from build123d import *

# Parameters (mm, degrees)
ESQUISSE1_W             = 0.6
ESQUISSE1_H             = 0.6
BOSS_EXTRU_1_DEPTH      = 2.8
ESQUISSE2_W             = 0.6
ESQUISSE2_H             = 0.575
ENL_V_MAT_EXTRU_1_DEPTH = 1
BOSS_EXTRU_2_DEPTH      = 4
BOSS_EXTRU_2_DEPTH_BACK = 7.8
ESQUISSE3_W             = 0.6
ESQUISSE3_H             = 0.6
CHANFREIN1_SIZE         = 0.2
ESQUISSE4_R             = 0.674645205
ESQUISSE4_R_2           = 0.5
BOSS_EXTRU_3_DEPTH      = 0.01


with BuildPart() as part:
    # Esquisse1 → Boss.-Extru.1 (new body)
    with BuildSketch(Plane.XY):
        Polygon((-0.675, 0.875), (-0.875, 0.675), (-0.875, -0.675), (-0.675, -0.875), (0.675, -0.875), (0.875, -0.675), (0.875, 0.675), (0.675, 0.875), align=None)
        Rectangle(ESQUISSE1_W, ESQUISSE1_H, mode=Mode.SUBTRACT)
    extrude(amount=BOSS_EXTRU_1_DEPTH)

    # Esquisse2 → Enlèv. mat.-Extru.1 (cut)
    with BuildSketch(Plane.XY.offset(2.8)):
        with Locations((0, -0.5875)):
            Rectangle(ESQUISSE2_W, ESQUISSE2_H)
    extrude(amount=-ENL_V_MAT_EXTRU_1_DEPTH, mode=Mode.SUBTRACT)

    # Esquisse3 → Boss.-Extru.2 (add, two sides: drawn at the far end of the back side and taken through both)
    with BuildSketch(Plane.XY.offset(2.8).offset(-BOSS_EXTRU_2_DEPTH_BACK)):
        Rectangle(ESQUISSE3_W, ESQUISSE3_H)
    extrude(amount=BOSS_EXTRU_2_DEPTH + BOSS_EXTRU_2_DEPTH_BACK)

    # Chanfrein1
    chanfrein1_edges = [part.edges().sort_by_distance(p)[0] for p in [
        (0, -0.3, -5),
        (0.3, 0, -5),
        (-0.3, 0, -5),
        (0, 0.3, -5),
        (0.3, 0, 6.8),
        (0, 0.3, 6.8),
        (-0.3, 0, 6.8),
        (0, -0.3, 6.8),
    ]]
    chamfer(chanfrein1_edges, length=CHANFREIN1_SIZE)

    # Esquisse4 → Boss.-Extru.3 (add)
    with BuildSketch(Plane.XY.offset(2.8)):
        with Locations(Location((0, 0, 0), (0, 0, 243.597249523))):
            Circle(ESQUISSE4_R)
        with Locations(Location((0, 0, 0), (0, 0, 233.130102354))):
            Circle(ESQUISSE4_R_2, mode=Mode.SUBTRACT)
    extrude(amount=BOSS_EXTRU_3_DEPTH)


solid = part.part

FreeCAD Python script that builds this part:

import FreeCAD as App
import Part
import Sketcher
from FreeCAD import Vector
Q = App.Units.Quantity


def edges_at(feature, points):
    """Names of the edges that pass closest to the given points."""
    edges = feature.Shape.Edges
    near = lambda p: min(range(len(edges)), key=lambda i: edges[i].distToShape(Part.Vertex(*p))[0])
    return sorted({f"Edge{near(p) + 1}" for p in points})

doc = App.newDocument("Part")
body = doc.addObject("PartDesign::Body", "Body")

# Sketch on XY plane
sketch1 = body.newObject("Sketcher::SketchObject", "Sketch")
sketch1.AttachmentSupport = (doc.getObject("XY_Plane"), [""])
sketch1.MapMode = "FlatFace"
sketch1.addGeometry(Part.LineSegment(Vector(-0.675, 0.875, 0), Vector(-0.875, 0.675, 0)), False)
sketch1.addGeometry(Part.LineSegment(Vector(-0.875, 0.675, 0), Vector(-0.875, -0.675, 0)), False)
sketch1.addGeometry(Part.LineSegment(Vector(-0.875, -0.675, 0), Vector(-0.675, -0.875, 0)), False)
sketch1.addGeometry(Part.LineSegment(Vector(-0.675, -0.875, 0), Vector(0.675, -0.875, 0)), False)
sketch1.addGeometry(Part.LineSegment(Vector(0.675, -0.875, 0), Vector(0.875, -0.675, 0)), False)
sketch1.addGeometry(Part.LineSegment(Vector(0.875, -0.675, 0), Vector(0.875, 0.675, 0)), False)
sketch1.addGeometry(Part.LineSegment(Vector(0.875, 0.675, 0), Vector(0.675, 0.875, 0)), False)
sketch1.addGeometry(Part.LineSegment(Vector(0.675, 0.875, 0), Vector(-0.675, 0.875, 0)), False)
sketch1.addGeometry(Part.LineSegment(Vector(0.3, -0.3, 0), Vector(-0.3, -0.3, 0)), False)
sketch1.addGeometry(Part.LineSegment(Vector(-0.3, -0.3, 0), Vector(-0.3, 0.3, 0)), False)
sketch1.addGeometry(Part.LineSegment(Vector(-0.3, 0.3, 0), Vector(0.3, 0.3, 0)), False)
sketch1.addGeometry(Part.LineSegment(Vector(0.3, 0.3, 0), Vector(0.3, -0.3, 0)), False)
sketch1.addConstraint(Sketcher.Constraint("Coincident", 0, 2, 1, 1))
sketch1.addConstraint(Sketcher.Constraint("Coincident", 1, 2, 2, 1))
sketch1.addConstraint(Sketcher.Constraint("Coincident", 2, 2, 3, 1))
sketch1.addConstraint(Sketcher.Constraint("Coincident", 3, 2, 4, 1))
sketch1.addConstraint(Sketcher.Constraint("Coincident", 4, 2, 5, 1))
sketch1.addConstraint(Sketcher.Constraint("Coincident", 5, 2, 6, 1))
sketch1.addConstraint(Sketcher.Constraint("Coincident", 6, 2, 7, 1))
sketch1.addConstraint(Sketcher.Constraint("Coincident", 7, 2, 0, 1))
sketch1.addConstraint(Sketcher.Constraint("Coincident", 8, 2, 9, 1))
sketch1.addConstraint(Sketcher.Constraint("Coincident", 9, 2, 10, 1))
sketch1.addConstraint(Sketcher.Constraint("Coincident", 10, 2, 11, 1))
sketch1.addConstraint(Sketcher.Constraint("Coincident", 11, 2, 8, 1))
sketch1.addConstraint(Sketcher.Constraint("Vertical", 1))
sketch1.addConstraint(Sketcher.Constraint("Horizontal", 3))
sketch1.addConstraint(Sketcher.Constraint("Vertical", 5))
sketch1.addConstraint(Sketcher.Constraint("Horizontal", 7))
sketch1.addConstraint(Sketcher.Constraint("Horizontal", 8))
sketch1.addConstraint(Sketcher.Constraint("Vertical", 9))
sketch1.addConstraint(Sketcher.Constraint("Horizontal", 10))
sketch1.addConstraint(Sketcher.Constraint("Vertical", 11))
sketch1.addConstraint(Sketcher.Constraint("Symmetric", 0, 2, 4, 2, -1, 1))
sketch1.addConstraint(Sketcher.Constraint("Symmetric", 2, 2, 6, 2, -1, 1))
sketch1.addConstraint(Sketcher.Constraint("Symmetric", 8, 2, 10, 2, -1, 1))
sketch1.addConstraint(Sketcher.Constraint("Perpendicular", 0, 2))
sketch1.addConstraint(Sketcher.Constraint("Perpendicular", 2, 4))
sketch1.addConstraint(Sketcher.Constraint("Perpendicular", 4, 6))
sketch1.addConstraint(Sketcher.Constraint("Horizontal", 1, 2, 4, 2))
sketch1.addConstraint(Sketcher.Constraint("Vertical", 3, 2, 6, 2))
sketch1.addConstraint(Sketcher.Constraint("Equal", 7, 1))
sketch1.addConstraint(Sketcher.Constraint("Equal", 10, 9))
sketch1.addConstraint(Sketcher.Constraint("DistanceX", 8, 2, 8, 1, Q("0.6 mm")))
sketch1.addConstraint(Sketcher.Constraint("DistanceX", 3, 1, 3, 2, Q("1.35 mm")))
sketch1.addConstraint(Sketcher.Constraint("DistanceX", 1, 2, 2, 2, Q("0.2 mm")))
pad1 = body.newObject("PartDesign::Pad", "Pad")
pad1.Profile = sketch1
pad1.Length = 2.8

# Sketch on XY plane
sketch2 = body.newObject("Sketcher::SketchObject", "Sketch001")
sketch2.AttachmentSupport = (doc.getObject("XY_Plane"), [""])
sketch2.MapMode = "FlatFace"
sketch2.AttachmentOffset = App.Placement(Vector(0, 0, 2.8), App.Rotation())
sketch2.addGeometry(Part.LineSegment(Vector(-0.3, -0.3, 0), Vector(-0.3, -0.875, 0)), False)
sketch2.addGeometry(Part.LineSegment(Vector(-0.3, -0.875, 0), Vector(0.3, -0.875, 0)), False)
sketch2.addGeometry(Part.LineSegment(Vector(0.3, -0.875, 0), Vector(0.3, -0.3, 0)), False)
sketch2.addGeometry(Part.LineSegment(Vector(0.3, -0.3, 0), Vector(-0.3, -0.3, 0)), False)
sketch2.addConstraint(Sketcher.Constraint("Coincident", 0, 2, 1, 1))
sketch2.addConstraint(Sketcher.Constraint("Coincident", 1, 2, 2, 1))
sketch2.addConstraint(Sketcher.Constraint("Coincident", 2, 2, 3, 1))
sketch2.addConstraint(Sketcher.Constraint("Coincident", 3, 2, 0, 1))
sketch2.addConstraint(Sketcher.Constraint("Vertical", 0))
sketch2.addConstraint(Sketcher.Constraint("Horizontal", 1))
sketch2.addConstraint(Sketcher.Constraint("Vertical", 2))
sketch2.addConstraint(Sketcher.Constraint("Horizontal", 3))
sketch2.addConstraint(Sketcher.Constraint("DistanceX", 1, 1, 1, 2, Q("0.6 mm")))
sketch2.addConstraint(Sketcher.Constraint("DistanceX", 0, 2, -1, 1, Q("0.3 mm")))
sketch2.addConstraint(Sketcher.Constraint("DistanceY", 2, 2, -1, 1, Q("0.3 mm")))
sketch2.addConstraint(Sketcher.Constraint("DistanceY", 0, 2, 0, 1, Q("0.575 mm")))
pocket1 = body.newObject("PartDesign::Pocket", "Pocket")
pocket1.Profile = sketch2
pocket1.Length = 1

# Sketch on XY plane
sketch3 = body.newObject("Sketcher::SketchObject", "Sketch002")
sketch3.AttachmentSupport = (doc.getObject("XY_Plane"), [""])
sketch3.MapMode = "FlatFace"
sketch3.AttachmentOffset = App.Placement(Vector(0, 0, 2.8), App.Rotation())
sketch3.addGeometry(Part.LineSegment(Vector(-0.3, 0.3, 0), Vector(-0.3, -0.3, 0)), False)
sketch3.addGeometry(Part.LineSegment(Vector(-0.3, -0.3, 0), Vector(0.3, -0.3, 0)), False)
sketch3.addGeometry(Part.LineSegment(Vector(0.3, -0.3, 0), Vector(0.3, 0.3, 0)), False)
sketch3.addGeometry(Part.LineSegment(Vector(0.3, 0.3, 0), Vector(-0.3, 0.3, 0)), False)
sketch3.addConstraint(Sketcher.Constraint("Coincident", 0, 2, 1, 1))
sketch3.addConstraint(Sketcher.Constraint("Coincident", 1, 2, 2, 1))
sketch3.addConstraint(Sketcher.Constraint("Coincident", 2, 2, 3, 1))
sketch3.addConstraint(Sketcher.Constraint("Coincident", 3, 2, 0, 1))
sketch3.addConstraint(Sketcher.Constraint("Vertical", 0))
sketch3.addConstraint(Sketcher.Constraint("Horizontal", 1))
sketch3.addConstraint(Sketcher.Constraint("Vertical", 2))
sketch3.addConstraint(Sketcher.Constraint("Horizontal", 3))
sketch3.addConstraint(Sketcher.Constraint("Symmetric", 0, 2, 2, 2, -1, 1))
sketch3.addConstraint(Sketcher.Constraint("Equal", 3, 0))
sketch3.addConstraint(Sketcher.Constraint("DistanceX", 1, 1, 1, 2, Q("0.6 mm")))
pad2 = body.newObject("PartDesign::Pad", "Pad001")
pad2.Profile = sketch3
pad2.Type = "TwoLengths"
pad2.Length = 4
pad2.Length2 = 7.8
doc.recompute()

chamfer = body.newObject("PartDesign::Chamfer", "Chamfer")
chamfer.Base = (pad2, edges_at(pad2, [
    (0, -0.3, -5),
    (0.3, 0, -5),
    (-0.3, 0, -5),
    (0, 0.3, -5),
    (0.3, 0, 6.8),
    (0, 0.3, 6.8),
    (-0.3, 0, 6.8),
    (0, -0.3, 6.8),
]))
chamfer.Size = 0.2

# Sketch on XY plane
sketch4 = body.newObject("Sketcher::SketchObject", "Sketch003")
sketch4.AttachmentSupport = (doc.getObject("XY_Plane"), [""])
sketch4.MapMode = "FlatFace"
sketch4.AttachmentOffset = App.Placement(Vector(0, 0, 2.8), App.Rotation())
sketch4.addGeometry(Part.Circle(Vector(0, 0, 0), Vector(0, 0, 1), 0.674645), False)
sketch4.addGeometry(Part.Circle(Vector(0, 0, 0), Vector(0, 0, 1), 0.5), False)
sketch4.addConstraint(Sketcher.Constraint("Coincident", 0, 3, -1, 1))
sketch4.addConstraint(Sketcher.Constraint("Coincident", 1, 3, -1, 1))
sketch4.addConstraint(Sketcher.Constraint("Diameter", 1, Q("1 mm")))
sketch4.addConstraint(Sketcher.Constraint("Diameter", 0, Q("1.34929 mm")))
pad3 = body.newObject("PartDesign::Pad", "Pad002")
pad3.Profile = sketch4
pad3.Length = 0.01

doc.recompute()
